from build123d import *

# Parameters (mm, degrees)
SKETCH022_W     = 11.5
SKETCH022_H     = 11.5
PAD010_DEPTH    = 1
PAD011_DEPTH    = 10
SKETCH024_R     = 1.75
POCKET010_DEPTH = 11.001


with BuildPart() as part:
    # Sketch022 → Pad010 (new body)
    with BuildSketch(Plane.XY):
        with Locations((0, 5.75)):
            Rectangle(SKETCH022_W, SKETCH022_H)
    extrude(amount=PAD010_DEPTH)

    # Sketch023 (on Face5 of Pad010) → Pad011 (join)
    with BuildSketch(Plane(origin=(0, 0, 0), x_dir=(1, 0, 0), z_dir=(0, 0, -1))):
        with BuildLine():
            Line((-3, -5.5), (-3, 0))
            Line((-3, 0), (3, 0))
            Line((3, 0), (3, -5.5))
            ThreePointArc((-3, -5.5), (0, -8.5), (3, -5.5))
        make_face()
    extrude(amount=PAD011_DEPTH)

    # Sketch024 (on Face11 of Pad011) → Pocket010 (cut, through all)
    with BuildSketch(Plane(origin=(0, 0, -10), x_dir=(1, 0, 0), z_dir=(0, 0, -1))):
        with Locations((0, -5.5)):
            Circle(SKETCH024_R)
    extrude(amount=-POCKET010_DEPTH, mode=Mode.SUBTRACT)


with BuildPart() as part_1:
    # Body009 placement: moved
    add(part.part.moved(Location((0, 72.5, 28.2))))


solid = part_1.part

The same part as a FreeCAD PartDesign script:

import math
import FreeCAD as App
import Part
import Sketcher
Q = App.Units.Quantity


def add_polygon(sketch, points):
    """Adds a closed chain of lines whose ends are joined by coincident constraints."""
    first, n = sketch.GeometryCount, len(points)
    for a, b in zip(points, points[1:] + points[:1]):
        sketch.addGeometry(Part.LineSegment(App.Vector(*a, 0), App.Vector(*b, 0)), False)
    for i in range(n):
        sketch.addConstraint(Sketcher.Constraint("Coincident", first + i, 2, first + (i + 1) % n, 1))

doc = App.newDocument("Part")
body = doc.addObject("PartDesign::Body", "Body")

# Sketch on XY plane
sketch1 = doc.addObject("Sketcher::SketchObject", "Sketch")
body.addObject(sketch1)
sketch1.AttachmentSupport = (doc.XY_Plane, [""])
sketch1.MapMode = "FlatFace"
add_polygon(sketch1, [(-6, 12), (-6, 0), (6, 0), (6, 12)])  # lines 0-3
sketch1.addConstraint(Sketcher.Constraint("Vertical", 0))
sketch1.addConstraint(Sketcher.Constraint("Horizontal", 1))
sketch1.addConstraint(Sketcher.Constraint("Vertical", 2))
sketch1.addConstraint(Sketcher.Constraint("Horizontal", 3))
sketch1.addConstraint(Sketcher.Constraint("Symmetric", 0, 2, 1, 2, -1, 1))
sketch1.addConstraint(Sketcher.Constraint("Equal", 3, 0))
sketch1.addConstraint(Sketcher.Constraint("DistanceX", 1, 1, 1, 2, Q("11.5 mm")))
pad1 = doc.addObject("PartDesign::Pad", "Pad")
body.addObject(pad1)
pad1.Profile = sketch1
pad1.Length = 1

# Sketch on XY plane
sketch2 = doc.addObject("Sketcher::SketchObject", "Sketch001")
body.addObject(sketch2)
sketch2.AttachmentSupport = (doc.XY_Plane, [""])
sketch2.MapMode = "FlatFace"
sketch2.addGeometry(Part.LineSegment(App.Vector(-3, 0, 0), App.Vector(-3, 5.5, 0)), False)
sketch2.addGeometry(Part.ArcOfCircle(Part.Circle(App.Vector(0, 5.5, 0), App.Vector(0, 0, 1), 3), math.radians(0), math.radians(180)), False)
sketch2.addGeometry(Part.LineSegment(App.Vector(3, 5.5, 0), App.Vector(3, 0, 0)), False)
sketch2.addGeometry(Part.LineSegment(App.Vector(3, 0, 0), App.Vector(-3, 0, 0)), False)
sketch2.addConstraint(Sketcher.Constraint("Tangent", 0, 2, 1, 2))
sketch2.addConstraint(Sketcher.Constraint("Tangent", 1, 1, 2, 1))
sketch2.addConstraint(Sketcher.Constraint("Coincident", 2, 2, 3, 1))
sketch2.addConstraint(Sketcher.Constraint("Coincident", 3, 2, 0, 1))
sketch2.addConstraint(Sketcher.Constraint("Vertical", 0))
sketch2.addConstraint(Sketcher.Constraint("Vertical", 2))
sketch2.addConstraint(Sketcher.Constraint("Horizontal", 3))
sketch2.addConstraint(Sketcher.Constraint("Symmetric", 2, 2, 3, 2, -1, 1))
sketch2.addConstraint(Sketcher.Constraint("Radius", 1, Q("3 mm")))
sketch2.addConstraint(Sketcher.Constraint("DistanceY", 0, 1, 0, 2, Q("5.5 mm")))
pad2 = doc.addObject("PartDesign::Pad", "Pad001")
body.addObject(pad2)
pad2.Profile = sketch2
pad2.Length = 10
pad2.Reversed = True

# Sketch on XY plane
sketch3 = doc.addObject("Sketcher::SketchObject", "Sketch002")
body.addObject(sketch3)
sketch3.AttachmentSupport = (doc.XY_Plane, [""])
sketch3.MapMode = "FlatFace"
sketch3.AttachmentOffset = App.Placement(App.Vector(0, 0, -10), App.Rotation())
sketch3.addGeometry(Part.Circle(App.Vector(0, 5.5, 0), App.Vector(0, 0, 1), 1.8), False)
sketch3.addConstraint(Sketcher.Constraint("PointOnObject", 0, 3, -2))
sketch3.addConstraint(Sketcher.Constraint("Diameter", 0, Q("3.5 mm")))
sketch3.addConstraint(Sketcher.Constraint("DistanceY", -1, 1, 0, 3, Q("5.5 mm")))
pocket1 = doc.addObject("PartDesign::Pocket", "Pocket")
body.addObject(pocket1)
pocket1.Profile = sketch3
pocket1.Type = "ThroughAll"
pocket1.Reversed = True
body2 = doc.addObject("PartDesign::Body", "Body001")
doc.recompute()

body.Placement = App.Placement(App.Vector(0, 72.5, 28.2), App.Rotation(App.Vector(0, 0, 1), 0))
boolean = doc.addObject("PartDesign::Boolean", "Boolean")
body2.addObject(boolean)
boolean.Type = "Fuse"
boolean.addObjects([body])

doc.recompute()
